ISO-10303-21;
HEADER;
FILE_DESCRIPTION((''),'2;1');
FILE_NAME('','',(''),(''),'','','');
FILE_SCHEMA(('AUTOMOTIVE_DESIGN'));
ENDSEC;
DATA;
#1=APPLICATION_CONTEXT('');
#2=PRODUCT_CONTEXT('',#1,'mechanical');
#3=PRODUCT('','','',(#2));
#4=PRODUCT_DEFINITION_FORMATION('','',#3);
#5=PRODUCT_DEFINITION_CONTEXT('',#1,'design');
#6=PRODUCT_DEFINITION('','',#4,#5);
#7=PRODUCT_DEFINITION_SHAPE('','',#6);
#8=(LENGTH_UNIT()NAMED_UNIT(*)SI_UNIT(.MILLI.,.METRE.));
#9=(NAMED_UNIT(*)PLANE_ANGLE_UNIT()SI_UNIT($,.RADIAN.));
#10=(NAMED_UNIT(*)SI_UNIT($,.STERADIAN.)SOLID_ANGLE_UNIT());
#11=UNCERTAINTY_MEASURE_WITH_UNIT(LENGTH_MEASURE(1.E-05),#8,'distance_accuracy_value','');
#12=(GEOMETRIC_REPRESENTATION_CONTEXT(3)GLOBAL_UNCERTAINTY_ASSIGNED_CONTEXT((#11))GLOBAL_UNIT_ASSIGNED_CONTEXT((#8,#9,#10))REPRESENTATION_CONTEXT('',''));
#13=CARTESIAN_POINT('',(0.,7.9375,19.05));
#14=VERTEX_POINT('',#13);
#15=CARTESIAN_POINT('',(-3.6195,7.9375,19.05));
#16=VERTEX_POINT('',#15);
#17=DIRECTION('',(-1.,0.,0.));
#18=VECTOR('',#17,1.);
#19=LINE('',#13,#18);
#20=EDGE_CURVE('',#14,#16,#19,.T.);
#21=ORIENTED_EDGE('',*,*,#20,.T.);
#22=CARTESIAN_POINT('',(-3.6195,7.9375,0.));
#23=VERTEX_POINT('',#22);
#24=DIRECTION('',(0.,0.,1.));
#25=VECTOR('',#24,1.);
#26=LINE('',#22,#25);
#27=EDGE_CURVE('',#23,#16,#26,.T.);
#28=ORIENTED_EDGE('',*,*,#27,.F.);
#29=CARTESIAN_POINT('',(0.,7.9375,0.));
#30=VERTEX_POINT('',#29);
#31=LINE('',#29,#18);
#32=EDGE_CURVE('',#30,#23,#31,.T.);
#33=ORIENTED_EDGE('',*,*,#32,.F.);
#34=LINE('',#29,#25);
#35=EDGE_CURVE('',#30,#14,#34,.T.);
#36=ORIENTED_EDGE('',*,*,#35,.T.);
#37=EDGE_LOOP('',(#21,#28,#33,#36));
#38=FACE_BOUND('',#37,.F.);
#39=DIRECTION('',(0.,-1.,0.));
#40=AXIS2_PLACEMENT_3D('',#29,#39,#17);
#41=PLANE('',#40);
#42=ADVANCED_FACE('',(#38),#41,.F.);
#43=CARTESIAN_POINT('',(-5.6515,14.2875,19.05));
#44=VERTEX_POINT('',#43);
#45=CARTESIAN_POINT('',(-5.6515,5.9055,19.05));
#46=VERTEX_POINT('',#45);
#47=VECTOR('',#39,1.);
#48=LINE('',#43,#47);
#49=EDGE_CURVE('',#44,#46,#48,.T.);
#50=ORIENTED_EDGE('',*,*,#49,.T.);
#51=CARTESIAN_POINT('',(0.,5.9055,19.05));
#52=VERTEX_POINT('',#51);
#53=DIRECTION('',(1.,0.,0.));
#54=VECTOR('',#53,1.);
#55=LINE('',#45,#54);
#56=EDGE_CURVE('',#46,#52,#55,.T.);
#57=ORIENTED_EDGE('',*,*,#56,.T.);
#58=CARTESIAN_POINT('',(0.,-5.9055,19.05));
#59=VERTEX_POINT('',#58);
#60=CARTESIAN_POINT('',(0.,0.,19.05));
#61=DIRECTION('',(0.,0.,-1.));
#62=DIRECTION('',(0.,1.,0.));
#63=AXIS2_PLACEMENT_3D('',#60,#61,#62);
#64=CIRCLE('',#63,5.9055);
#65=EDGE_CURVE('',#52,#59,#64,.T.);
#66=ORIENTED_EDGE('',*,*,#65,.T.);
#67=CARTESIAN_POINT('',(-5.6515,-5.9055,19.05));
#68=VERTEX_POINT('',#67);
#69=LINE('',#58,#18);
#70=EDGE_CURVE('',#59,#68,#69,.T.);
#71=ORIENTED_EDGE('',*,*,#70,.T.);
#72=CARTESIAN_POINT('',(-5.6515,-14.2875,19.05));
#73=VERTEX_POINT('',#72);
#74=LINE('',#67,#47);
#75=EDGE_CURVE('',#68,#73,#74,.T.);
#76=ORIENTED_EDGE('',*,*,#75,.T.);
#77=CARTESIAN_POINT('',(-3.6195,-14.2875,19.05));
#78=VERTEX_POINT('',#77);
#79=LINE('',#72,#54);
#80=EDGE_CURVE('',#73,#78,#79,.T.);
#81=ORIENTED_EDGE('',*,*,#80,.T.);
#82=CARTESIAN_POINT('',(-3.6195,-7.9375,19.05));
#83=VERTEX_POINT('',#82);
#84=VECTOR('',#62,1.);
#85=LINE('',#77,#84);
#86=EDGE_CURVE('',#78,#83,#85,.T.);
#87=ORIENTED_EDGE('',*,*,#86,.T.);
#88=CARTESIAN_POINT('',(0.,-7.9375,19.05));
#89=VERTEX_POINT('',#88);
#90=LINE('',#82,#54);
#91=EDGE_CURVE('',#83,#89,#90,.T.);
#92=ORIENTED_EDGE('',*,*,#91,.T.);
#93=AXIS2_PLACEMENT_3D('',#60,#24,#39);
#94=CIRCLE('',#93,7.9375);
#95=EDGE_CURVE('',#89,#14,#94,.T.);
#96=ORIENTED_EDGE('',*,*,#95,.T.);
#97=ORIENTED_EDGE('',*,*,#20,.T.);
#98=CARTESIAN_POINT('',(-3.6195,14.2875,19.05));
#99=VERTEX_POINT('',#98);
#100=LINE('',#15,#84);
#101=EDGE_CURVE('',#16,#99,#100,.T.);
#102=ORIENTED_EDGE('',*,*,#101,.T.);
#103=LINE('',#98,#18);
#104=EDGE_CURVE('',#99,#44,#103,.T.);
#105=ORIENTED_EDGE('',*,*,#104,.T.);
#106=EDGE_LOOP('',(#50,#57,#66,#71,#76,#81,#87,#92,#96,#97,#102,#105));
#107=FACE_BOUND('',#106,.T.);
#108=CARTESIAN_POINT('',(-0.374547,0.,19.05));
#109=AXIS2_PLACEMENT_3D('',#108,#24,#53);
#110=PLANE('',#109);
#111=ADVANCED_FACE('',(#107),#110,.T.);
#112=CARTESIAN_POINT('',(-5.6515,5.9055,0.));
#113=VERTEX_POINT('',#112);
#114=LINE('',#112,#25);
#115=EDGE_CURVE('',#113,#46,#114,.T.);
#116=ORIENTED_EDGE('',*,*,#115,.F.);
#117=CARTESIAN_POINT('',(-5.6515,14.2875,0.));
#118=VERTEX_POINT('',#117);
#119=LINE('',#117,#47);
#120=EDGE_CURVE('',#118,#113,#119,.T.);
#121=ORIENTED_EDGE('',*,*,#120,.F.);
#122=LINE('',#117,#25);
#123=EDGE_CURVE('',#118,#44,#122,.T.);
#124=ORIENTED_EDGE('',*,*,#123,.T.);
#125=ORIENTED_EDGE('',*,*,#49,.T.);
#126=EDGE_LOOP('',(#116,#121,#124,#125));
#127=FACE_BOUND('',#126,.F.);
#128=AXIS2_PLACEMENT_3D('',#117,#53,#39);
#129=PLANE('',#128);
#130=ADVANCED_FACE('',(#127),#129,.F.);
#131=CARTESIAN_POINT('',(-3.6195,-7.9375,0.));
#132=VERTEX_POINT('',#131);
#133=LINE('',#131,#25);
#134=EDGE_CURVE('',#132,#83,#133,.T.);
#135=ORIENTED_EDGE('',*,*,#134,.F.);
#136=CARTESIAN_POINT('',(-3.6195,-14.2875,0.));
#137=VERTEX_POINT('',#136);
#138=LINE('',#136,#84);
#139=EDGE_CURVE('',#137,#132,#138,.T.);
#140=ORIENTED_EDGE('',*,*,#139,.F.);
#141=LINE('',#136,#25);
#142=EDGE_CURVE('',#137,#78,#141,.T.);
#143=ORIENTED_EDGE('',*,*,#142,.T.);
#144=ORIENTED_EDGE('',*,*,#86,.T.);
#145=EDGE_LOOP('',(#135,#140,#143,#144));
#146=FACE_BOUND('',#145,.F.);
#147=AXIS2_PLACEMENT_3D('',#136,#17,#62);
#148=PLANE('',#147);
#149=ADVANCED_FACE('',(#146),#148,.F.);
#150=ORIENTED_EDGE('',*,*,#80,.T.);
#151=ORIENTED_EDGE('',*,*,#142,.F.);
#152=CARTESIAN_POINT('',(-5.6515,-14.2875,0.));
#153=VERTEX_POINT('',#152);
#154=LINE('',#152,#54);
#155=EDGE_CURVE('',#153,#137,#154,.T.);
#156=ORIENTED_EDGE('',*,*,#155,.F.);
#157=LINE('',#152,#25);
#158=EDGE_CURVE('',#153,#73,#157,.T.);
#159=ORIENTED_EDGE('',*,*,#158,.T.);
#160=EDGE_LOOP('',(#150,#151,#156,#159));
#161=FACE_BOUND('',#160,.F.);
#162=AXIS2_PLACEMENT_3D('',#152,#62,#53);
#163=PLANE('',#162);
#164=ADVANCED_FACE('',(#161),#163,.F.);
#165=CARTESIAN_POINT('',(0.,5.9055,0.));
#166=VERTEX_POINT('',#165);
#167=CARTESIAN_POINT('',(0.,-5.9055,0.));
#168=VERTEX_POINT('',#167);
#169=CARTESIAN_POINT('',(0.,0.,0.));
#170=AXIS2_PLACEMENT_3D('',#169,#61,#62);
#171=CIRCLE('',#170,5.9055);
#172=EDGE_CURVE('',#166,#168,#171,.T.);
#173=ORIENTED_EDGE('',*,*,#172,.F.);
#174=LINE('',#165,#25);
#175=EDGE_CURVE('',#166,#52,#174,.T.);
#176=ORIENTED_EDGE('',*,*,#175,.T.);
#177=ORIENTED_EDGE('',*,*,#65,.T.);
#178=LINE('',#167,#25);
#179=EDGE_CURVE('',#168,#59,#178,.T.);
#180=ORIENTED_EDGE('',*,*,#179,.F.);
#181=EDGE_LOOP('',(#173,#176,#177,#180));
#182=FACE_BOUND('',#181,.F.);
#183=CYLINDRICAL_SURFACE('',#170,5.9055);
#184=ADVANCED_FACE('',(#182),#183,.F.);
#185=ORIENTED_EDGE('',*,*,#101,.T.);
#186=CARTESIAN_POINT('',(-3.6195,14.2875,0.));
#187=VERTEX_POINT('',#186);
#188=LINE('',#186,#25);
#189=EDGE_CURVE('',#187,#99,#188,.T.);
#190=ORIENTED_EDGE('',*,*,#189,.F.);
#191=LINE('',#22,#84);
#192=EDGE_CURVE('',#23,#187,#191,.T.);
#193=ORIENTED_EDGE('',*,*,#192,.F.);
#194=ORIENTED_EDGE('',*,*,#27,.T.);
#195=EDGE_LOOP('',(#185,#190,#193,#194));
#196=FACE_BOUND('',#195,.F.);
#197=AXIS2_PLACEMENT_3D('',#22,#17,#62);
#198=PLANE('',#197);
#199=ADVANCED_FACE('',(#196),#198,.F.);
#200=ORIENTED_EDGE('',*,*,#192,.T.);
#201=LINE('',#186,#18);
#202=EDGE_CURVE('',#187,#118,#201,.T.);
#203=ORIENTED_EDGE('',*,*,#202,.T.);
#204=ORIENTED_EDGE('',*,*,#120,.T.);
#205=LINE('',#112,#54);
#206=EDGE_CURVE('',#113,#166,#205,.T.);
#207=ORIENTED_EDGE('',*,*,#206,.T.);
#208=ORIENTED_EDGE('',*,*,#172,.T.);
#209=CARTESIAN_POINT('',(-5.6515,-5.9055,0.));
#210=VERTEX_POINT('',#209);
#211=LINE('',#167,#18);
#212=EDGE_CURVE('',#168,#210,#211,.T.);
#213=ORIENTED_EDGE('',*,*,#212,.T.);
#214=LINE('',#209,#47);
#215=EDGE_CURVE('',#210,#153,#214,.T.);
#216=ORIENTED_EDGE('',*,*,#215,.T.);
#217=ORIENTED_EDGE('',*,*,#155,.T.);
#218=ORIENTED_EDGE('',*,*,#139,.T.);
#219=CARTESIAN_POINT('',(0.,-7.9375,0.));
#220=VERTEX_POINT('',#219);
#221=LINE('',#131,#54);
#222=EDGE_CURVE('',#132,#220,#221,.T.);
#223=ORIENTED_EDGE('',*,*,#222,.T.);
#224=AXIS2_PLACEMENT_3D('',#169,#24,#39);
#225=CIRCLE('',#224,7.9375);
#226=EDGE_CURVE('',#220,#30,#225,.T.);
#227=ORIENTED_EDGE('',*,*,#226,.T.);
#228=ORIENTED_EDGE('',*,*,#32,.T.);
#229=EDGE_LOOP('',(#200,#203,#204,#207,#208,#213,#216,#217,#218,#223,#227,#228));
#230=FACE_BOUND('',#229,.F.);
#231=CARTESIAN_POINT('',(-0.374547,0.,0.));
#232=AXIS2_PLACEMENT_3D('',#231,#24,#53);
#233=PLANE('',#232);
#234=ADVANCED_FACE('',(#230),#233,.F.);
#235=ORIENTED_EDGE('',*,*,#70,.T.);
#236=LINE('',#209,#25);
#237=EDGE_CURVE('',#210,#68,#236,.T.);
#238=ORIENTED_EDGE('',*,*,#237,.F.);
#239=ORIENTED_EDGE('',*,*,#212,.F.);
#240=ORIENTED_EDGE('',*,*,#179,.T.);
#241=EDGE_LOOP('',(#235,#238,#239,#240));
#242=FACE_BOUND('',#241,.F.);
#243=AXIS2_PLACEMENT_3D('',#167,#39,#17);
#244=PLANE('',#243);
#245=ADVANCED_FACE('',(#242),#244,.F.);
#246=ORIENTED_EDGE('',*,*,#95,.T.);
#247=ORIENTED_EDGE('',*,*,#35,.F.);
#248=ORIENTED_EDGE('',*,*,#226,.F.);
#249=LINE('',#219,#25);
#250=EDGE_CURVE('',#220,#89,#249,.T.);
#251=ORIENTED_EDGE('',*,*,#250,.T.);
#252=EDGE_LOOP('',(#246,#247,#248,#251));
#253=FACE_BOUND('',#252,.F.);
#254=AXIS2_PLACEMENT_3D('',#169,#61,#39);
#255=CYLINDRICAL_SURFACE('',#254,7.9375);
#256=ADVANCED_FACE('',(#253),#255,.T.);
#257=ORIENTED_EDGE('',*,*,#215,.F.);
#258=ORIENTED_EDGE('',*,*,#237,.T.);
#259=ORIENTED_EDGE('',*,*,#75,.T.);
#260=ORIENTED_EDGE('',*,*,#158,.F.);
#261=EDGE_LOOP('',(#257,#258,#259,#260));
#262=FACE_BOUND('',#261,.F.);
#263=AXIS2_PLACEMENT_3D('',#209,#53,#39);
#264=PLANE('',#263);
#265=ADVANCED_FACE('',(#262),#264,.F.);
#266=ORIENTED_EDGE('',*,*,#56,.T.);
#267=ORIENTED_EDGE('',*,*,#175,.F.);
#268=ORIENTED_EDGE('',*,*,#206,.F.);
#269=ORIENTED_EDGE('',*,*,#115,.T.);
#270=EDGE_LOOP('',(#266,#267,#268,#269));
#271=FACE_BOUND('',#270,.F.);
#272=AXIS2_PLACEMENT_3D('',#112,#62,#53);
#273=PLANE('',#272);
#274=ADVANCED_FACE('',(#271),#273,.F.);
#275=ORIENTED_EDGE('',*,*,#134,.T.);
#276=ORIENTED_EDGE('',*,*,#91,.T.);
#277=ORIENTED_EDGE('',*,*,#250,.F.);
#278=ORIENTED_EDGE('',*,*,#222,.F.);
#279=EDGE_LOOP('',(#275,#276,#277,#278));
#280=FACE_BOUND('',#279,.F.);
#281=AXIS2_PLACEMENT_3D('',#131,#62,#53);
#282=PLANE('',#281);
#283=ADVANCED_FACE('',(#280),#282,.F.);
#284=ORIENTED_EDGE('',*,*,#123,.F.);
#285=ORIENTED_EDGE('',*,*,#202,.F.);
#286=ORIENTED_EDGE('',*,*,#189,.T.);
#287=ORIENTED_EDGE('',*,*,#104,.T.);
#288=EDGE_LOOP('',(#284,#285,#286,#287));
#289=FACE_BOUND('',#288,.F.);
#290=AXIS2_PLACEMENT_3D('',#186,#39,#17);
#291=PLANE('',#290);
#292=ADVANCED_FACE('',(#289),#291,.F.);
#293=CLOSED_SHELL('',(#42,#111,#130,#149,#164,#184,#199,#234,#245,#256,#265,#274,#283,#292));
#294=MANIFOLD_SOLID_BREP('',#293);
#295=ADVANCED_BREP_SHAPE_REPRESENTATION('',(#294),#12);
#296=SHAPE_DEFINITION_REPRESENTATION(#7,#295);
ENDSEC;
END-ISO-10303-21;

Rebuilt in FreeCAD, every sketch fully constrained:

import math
import FreeCAD as App
import Part
import Sketcher

V = App.Vector
Q = App.Units.Quantity

doc = App.newDocument("Part")
body = doc.addObject("PartDesign::Body", "Body")

# Sketch on XY plane
sketch1 = body.newObject("Sketcher::SketchObject", "Sketch")
sketch1.AttachmentSupport = (doc.getObject("XY_Plane"), [""])
sketch1.MapMode = "FlatFace"
sketch1.addGeometry([
    Part.LineSegment(V(-5.7, 5.9, 0), V(0, 5.9, 0)),  # 0
    Part.ArcOfCircle(Part.Circle(V(0, 0, 0), V(0, 0, 1), 5.9), math.radians(-90), math.radians(90)),  # 1
    Part.LineSegment(V(0, -5.9, 0), V(-5.7, -5.9, 0)),  # 2
    Part.LineSegment(V(-5.7, -5.9, 0), V(-5.7, -14.3, 0)),  # 3
    Part.LineSegment(V(-5.7, -14.3, 0), V(-3.6, -14.3, 0)),  # 4
    Part.LineSegment(V(-3.6, -14.3, 0), V(-3.6, -7.9, 0)),  # 5
    Part.LineSegment(V(-3.6, -7.9, 0), V(0, -7.9, 0)),  # 6
    Part.ArcOfCircle(Part.Circle(V(0, 0, 0), V(0, 0, 1), 7.9), math.radians(-90), math.radians(90)),  # 7
    Part.LineSegment(V(0, 7.9, 0), V(-3.6, 7.9, 0)),  # 8
    Part.LineSegment(V(-3.6, 7.9, 0), V(-3.6, 14.3, 0)),  # 9
    Part.LineSegment(V(-3.6, 14.3, 0), V(-5.7, 14.3, 0)),  # 10
    Part.LineSegment(V(-5.7, 14.3, 0), V(-5.7, 5.9, 0)),  # 11
], False)
sketch1.addConstraint([
    Sketcher.Constraint("Tangent", 0, 2, 1, 2),
    Sketcher.Constraint("Tangent", 1, 1, 2, 1),
    Sketcher.Constraint("Coincident", 2, 2, 3, 1),
    Sketcher.Constraint("Coincident", 3, 2, 4, 1),
    Sketcher.Constraint("Coincident", 4, 2, 5, 1),
    Sketcher.Constraint("Coincident", 5, 2, 6, 1),
    Sketcher.Constraint("Tangent", 6, 2, 7, 1),
    Sketcher.Constraint("Tangent", 7, 2, 8, 1),
    Sketcher.Constraint("Coincident", 8, 2, 9, 1),
    Sketcher.Constraint("Coincident", 9, 2, 10, 1),
    Sketcher.Constraint("Coincident", 10, 2, 11, 1),
    Sketcher.Constraint("Coincident", 11, 2, 0, 1),
    Sketcher.Constraint("Horizontal", 0),
    Sketcher.Constraint("Horizontal", 2),
    Sketcher.Constraint("Vertical", 3),
    Sketcher.Constraint("Horizontal", 4),
    Sketcher.Constraint("Vertical", 5),
    Sketcher.Constraint("Horizontal", 6),
    Sketcher.Constraint("Horizontal", 8),
    Sketcher.Constraint("Vertical", 9),
    Sketcher.Constraint("Horizontal", 10),
    Sketcher.Constraint("Vertical", 11),
    Sketcher.Constraint("Coincident", 1, 3, -1, 1),
    Sketcher.Constraint("Coincident", 7, 3, -1, 1),
    Sketcher.Constraint("Symmetric", 4, 2, 9, 2, -1),
    Sketcher.Constraint("Vertical", 3, 2, 10, 2),
    Sketcher.Constraint("Radius", 7, Q("0.3125 in")),
    Sketcher.Constraint("DistanceX", 4, 1, 4, 2, Q("0.08 in")),
    Sketcher.Constraint("DistanceY", 3, 2, 3, 1, Q("0.33 in")),
    Sketcher.Constraint("DistanceY", 5, 1, 5, 2, Q("0.25 in")),
    Sketcher.Constraint("DistanceX", 0, 1, 0, 2, Q("0.2225 in")),
])
pad1 = body.newObject("PartDesign::Pad", "Pad")
pad1.Profile = sketch1
pad1.Length = Q("0.75 in")

doc.recompute()
